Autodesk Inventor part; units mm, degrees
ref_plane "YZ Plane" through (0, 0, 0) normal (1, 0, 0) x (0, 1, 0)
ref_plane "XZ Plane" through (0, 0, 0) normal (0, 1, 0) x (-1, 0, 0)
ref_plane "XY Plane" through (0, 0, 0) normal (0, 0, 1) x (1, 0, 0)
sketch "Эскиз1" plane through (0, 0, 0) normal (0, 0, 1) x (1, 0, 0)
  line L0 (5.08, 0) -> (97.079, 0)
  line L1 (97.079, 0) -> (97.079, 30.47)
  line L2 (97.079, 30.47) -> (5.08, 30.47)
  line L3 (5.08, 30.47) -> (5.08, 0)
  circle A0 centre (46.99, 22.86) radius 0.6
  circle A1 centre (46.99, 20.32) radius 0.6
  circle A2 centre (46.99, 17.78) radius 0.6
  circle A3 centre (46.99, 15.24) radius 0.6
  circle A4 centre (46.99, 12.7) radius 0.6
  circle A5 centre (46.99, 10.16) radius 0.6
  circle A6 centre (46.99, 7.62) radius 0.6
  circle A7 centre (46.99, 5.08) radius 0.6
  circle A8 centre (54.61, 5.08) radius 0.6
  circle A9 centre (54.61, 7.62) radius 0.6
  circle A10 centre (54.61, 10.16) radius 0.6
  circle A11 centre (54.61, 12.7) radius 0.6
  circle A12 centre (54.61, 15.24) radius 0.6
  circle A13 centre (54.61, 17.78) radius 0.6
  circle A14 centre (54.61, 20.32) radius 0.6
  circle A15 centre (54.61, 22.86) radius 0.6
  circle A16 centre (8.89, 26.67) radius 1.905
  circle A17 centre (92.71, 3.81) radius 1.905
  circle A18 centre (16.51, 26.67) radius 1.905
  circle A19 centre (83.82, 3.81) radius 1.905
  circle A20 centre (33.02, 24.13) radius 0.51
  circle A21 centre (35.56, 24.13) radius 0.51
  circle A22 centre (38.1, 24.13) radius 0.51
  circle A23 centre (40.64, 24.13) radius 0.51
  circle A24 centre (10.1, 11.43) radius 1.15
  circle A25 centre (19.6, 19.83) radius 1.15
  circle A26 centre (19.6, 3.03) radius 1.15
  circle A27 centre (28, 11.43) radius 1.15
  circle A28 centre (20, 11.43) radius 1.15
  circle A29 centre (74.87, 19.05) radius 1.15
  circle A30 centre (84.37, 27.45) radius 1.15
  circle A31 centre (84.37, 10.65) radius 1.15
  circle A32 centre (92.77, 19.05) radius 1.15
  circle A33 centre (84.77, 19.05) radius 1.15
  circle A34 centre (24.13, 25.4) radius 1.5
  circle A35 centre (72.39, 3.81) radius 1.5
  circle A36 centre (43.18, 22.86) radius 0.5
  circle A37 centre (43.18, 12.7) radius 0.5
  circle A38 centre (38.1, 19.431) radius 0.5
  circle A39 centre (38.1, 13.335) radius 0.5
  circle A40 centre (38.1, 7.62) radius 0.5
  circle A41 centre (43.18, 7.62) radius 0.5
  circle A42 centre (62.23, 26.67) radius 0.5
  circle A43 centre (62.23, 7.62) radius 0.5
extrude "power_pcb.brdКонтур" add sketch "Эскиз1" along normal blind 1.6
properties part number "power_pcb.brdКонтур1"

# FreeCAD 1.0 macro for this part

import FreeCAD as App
import Part
import Sketcher
from FreeCAD import Vector
Q = App.Units.Quantity


def add_polygon(sketch, points):
    """Adds a closed chain of lines whose ends are joined by coincident constraints."""
    first, n = sketch.GeometryCount, len(points)
    for a, b in zip(points, points[1:] + points[:1]):
        sketch.addGeometry(Part.LineSegment(App.Vector(*a, 0), App.Vector(*b, 0)), False)
    for i in range(n):
        sketch.addConstraint(Sketcher.Constraint("Coincident", first + i, 2, first + (i + 1) % n, 1))

doc = App.newDocument("Part")
body = doc.addObject("PartDesign::Body", "Body")

# Sketch on XY plane
sketch1 = doc.addObject("Sketcher::SketchObject", "Sketch")
body.addObject(sketch1)
sketch1.AttachmentSupport = (doc.XY_Plane, [""])
sketch1.MapMode = "FlatFace"
add_polygon(sketch1, [(5.08, 30.47), (5.08, 0), (97.079, 0), (97.079, 30.47)])  # lines 0-3
sketch1.addGeometry(Part.Circle(Vector(19.6, 3.03, 0), Vector(0, 0, 1), 1.15), False)  # 4
sketch1.addGeometry(Part.Circle(Vector(46.99, 5.08, 0), Vector(0, 0, 1), 0.6), False)  # 5
sketch1.addGeometry(Part.Circle(Vector(10.1, 11.43, 0), Vector(0, 0, 1), 1.15), False)  # 6
sketch1.addGeometry(Part.Circle(Vector(20, 11.43, 0), Vector(0, 0, 1), 1.15), False)  # 7
sketch1.addGeometry(Part.Circle(Vector(28, 11.43, 0), Vector(0, 0, 1), 1.15), False)  # 8
sketch1.addGeometry(Part.Circle(Vector(38.1, 7.62, 0), Vector(0, 0, 1), 0.5), False)  # 9
sketch1.addGeometry(Part.Circle(Vector(43.18, 7.62, 0), Vector(0, 0, 1), 0.5), False)  # 10
sketch1.addGeometry(Part.Circle(Vector(46.99, 7.62, 0), Vector(0, 0, 1), 0.6), False)  # 11
sketch1.addGeometry(Part.Circle(Vector(46.99, 10.16, 0), Vector(0, 0, 1), 0.6), False)  # 12
sketch1.addGeometry(Part.Circle(Vector(38.1, 13.335, 0), Vector(0, 0, 1), 0.5), False)  # 13
sketch1.addGeometry(Part.Circle(Vector(43.18, 12.7, 0), Vector(0, 0, 1), 0.5), False)  # 14
sketch1.addGeometry(Part.Circle(Vector(46.99, 12.7, 0), Vector(0, 0, 1), 0.6), False)  # 15
sketch1.addGeometry(Part.Circle(Vector(54.61, 5.08, 0), Vector(0, 0, 1), 0.6), False)  # 16
sketch1.addGeometry(Part.Circle(Vector(72.39, 3.81, 0), Vector(0, 0, 1), 1.5), False)  # 17
sketch1.addGeometry(Part.Circle(Vector(83.82, 3.81, 0), Vector(0, 0, 1), 1.905), False)  # 18
sketch1.addGeometry(Part.Circle(Vector(92.71, 3.81, 0), Vector(0, 0, 1), 1.905), False)  # 19
sketch1.addGeometry(Part.Circle(Vector(54.61, 7.62, 0), Vector(0, 0, 1), 0.6), False)  # 20
sketch1.addGeometry(Part.Circle(Vector(62.23, 7.62, 0), Vector(0, 0, 1), 0.5), False)  # 21
sketch1.addGeometry(Part.Circle(Vector(54.61, 10.16, 0), Vector(0, 0, 1), 0.6), False)  # 22
sketch1.addGeometry(Part.Circle(Vector(54.61, 12.7, 0), Vector(0, 0, 1), 0.6), False)  # 23
sketch1.addGeometry(Part.Circle(Vector(84.37, 10.65, 0), Vector(0, 0, 1), 1.15), False)  # 24
sketch1.addGeometry(Part.Circle(Vector(19.6, 19.83, 0), Vector(0, 0, 1), 1.15), False)  # 25
sketch1.addGeometry(Part.Circle(Vector(46.99, 15.24, 0), Vector(0, 0, 1), 0.6), False)  # 26
sketch1.addGeometry(Part.Circle(Vector(46.99, 17.78, 0), Vector(0, 0, 1), 0.6), False)  # 27
sketch1.addGeometry(Part.Circle(Vector(38.1, 19.431, 0), Vector(0, 0, 1), 0.5), False)  # 28
sketch1.addGeometry(Part.Circle(Vector(46.99, 20.32, 0), Vector(0, 0, 1), 0.6), False)  # 29
sketch1.addGeometry(Part.Circle(Vector(24.13, 25.4, 0), Vector(0, 0, 1), 1.5), False)  # 30
sketch1.addGeometry(Part.Circle(Vector(8.89, 26.67, 0), Vector(0, 0, 1), 1.905), False)  # 31
sketch1.addGeometry(Part.Circle(Vector(16.51, 26.67, 0), Vector(0, 0, 1), 1.905), False)  # 32
sketch1.addGeometry(Part.Circle(Vector(33.02, 24.13, 0), Vector(0, 0, 1), 0.51), False)  # 33
sketch1.addGeometry(Part.Circle(Vector(35.56, 24.13, 0), Vector(0, 0, 1), 0.51), False)  # 34
sketch1.addGeometry(Part.Circle(Vector(38.1, 24.13, 0), Vector(0, 0, 1), 0.51), False)  # 35
sketch1.addGeometry(Part.Circle(Vector(43.18, 22.86, 0), Vector(0, 0, 1), 0.5), False)  # 36
sketch1.addGeometry(Part.Circle(Vector(40.64, 24.13, 0), Vector(0, 0, 1), 0.51), False)  # 37
sketch1.addGeometry(Part.Circle(Vector(46.99, 22.86, 0), Vector(0, 0, 1), 0.6), False)  # 38
sketch1.addGeometry(Part.Circle(Vector(54.61, 15.24, 0), Vector(0, 0, 1), 0.6), False)  # 39
sketch1.addGeometry(Part.Circle(Vector(54.61, 17.78, 0), Vector(0, 0, 1), 0.6), False)  # 40
sketch1.addGeometry(Part.Circle(Vector(54.61, 20.32, 0), Vector(0, 0, 1), 0.6), False)  # 41
sketch1.addGeometry(Part.Circle(Vector(74.87, 19.05, 0), Vector(0, 0, 1), 1.15), False)  # 42
sketch1.addGeometry(Part.Circle(Vector(84.77, 19.05, 0), Vector(0, 0, 1), 1.15), False)  # 43
sketch1.addGeometry(Part.Circle(Vector(92.77, 19.05, 0), Vector(0, 0, 1), 1.15), False)  # 44
sketch1.addGeometry(Part.Circle(Vector(54.61, 22.86, 0), Vector(0, 0, 1), 0.6), False)  # 45
sketch1.addGeometry(Part.Circle(Vector(62.23, 26.67, 0), Vector(0, 0, 1), 0.5), False)  # 46
sketch1.addGeometry(Part.Circle(Vector(84.37, 27.45, 0), Vector(0, 0, 1), 1.15), False)  # 47
sketch1.addConstraint([
    Sketcher.Constraint("Vertical", 0),
    Sketcher.Constraint("Horizontal", 1),
    Sketcher.Constraint("Vertical", 2),
    Sketcher.Constraint("Horizontal", 3),
    Sketcher.Constraint("Equal", 4, 6),
    Sketcher.Constraint("Equal", 6, 7),
    Sketcher.Constraint("Equal", 7, 8),
    Sketcher.Constraint("Equal", 9, 10),
    Sketcher.Constraint("Equal", 5, 11),
    Sketcher.Constraint("Equal", 11, 12),
    Sketcher.Constraint("Equal", 10, 13),
    Sketcher.Constraint("Equal", 13, 14),
    Sketcher.Constraint("Equal", 12, 15),
    Sketcher.Constraint("Equal", 15, 16),
    Sketcher.Constraint("Equal", 18, 19),
    Sketcher.Constraint("Equal", 16, 20),
    Sketcher.Constraint("Equal", 14, 21),
    Sketcher.Constraint("Equal", 20, 22),
    Sketcher.Constraint("Equal", 22, 23),
    Sketcher.Constraint("Equal", 8, 24),
    Sketcher.Constraint("Equal", 24, 25),
    Sketcher.Constraint("Equal", 23, 26),
    Sketcher.Constraint("Equal", 26, 27),
    Sketcher.Constraint("Equal", 21, 28),
    Sketcher.Constraint("Equal", 27, 29),
    Sketcher.Constraint("Equal", 17, 30),
    Sketcher.Constraint("Equal", 19, 31),
    Sketcher.Constraint("Equal", 31, 32),
    Sketcher.Constraint("Equal", 33, 34),
    Sketcher.Constraint("Equal", 34, 35),
    Sketcher.Constraint("Equal", 28, 36),
    Sketcher.Constraint("Equal", 35, 37),
    Sketcher.Constraint("Equal", 29, 38),
    Sketcher.Constraint("Equal", 38, 39),
    Sketcher.Constraint("Equal", 39, 40),
    Sketcher.Constraint("Equal", 40, 41),
    Sketcher.Constraint("Equal", 25, 42),
    Sketcher.Constraint("Equal", 42, 43),
    Sketcher.Constraint("Equal", 43, 44),
    Sketcher.Constraint("Equal", 41, 45),
    Sketcher.Constraint("Equal", 36, 46),
    Sketcher.Constraint("Equal", 44, 47),
    Sketcher.Constraint("PointOnObject", 0, 2, -1),
    Sketcher.Constraint("Horizontal", 6, 3, 7, 3),
    Sketcher.Constraint("Horizontal", 7, 3, 8, 3),
    Sketcher.Constraint("Horizontal", 9, 3, 10, 3),
    Sketcher.Constraint("Horizontal", 10, 3, 11, 3),
    Sketcher.Constraint("Horizontal", 14, 3, 15, 3),
    Sketcher.Constraint("Horizontal", 5, 3, 16, 3),
    Sketcher.Constraint("Horizontal", 17, 3, 18, 3),
    Sketcher.Constraint("Horizontal", 18, 3, 19, 3),
    Sketcher.Constraint("Horizontal", 11, 3, 20, 3),
    Sketcher.Constraint("Horizontal", 20, 3, 21, 3),
    Sketcher.Constraint("Horizontal", 12, 3, 22, 3),
    Sketcher.Constraint("Horizontal", 15, 3, 23, 3),
    Sketcher.Constraint("Horizontal", 31, 3, 32, 3),
    Sketcher.Constraint("Horizontal", 33, 3, 34, 3),
    Sketcher.Constraint("Horizontal", 34, 3, 35, 3),
    Sketcher.Constraint("Horizontal", 35, 3, 37, 3),
    Sketcher.Constraint("Horizontal", 36, 3, 38, 3),
    Sketcher.Constraint("Horizontal", 26, 3, 39, 3),
    Sketcher.Constraint("Horizontal", 27, 3, 40, 3),
    Sketcher.Constraint("Horizontal", 29, 3, 41, 3),
    Sketcher.Constraint("Horizontal", 42, 3, 43, 3),
    Sketcher.Constraint("Horizontal", 43, 3, 44, 3),
    Sketcher.Constraint("Horizontal", 38, 3, 45, 3),
    Sketcher.Constraint("Horizontal", 32, 3, 46, 3),
    Sketcher.Constraint("Vertical", 5, 3, 11, 3),
    Sketcher.Constraint("Vertical", 11, 3, 12, 3),
    Sketcher.Constraint("Vertical", 9, 3, 13, 3),
    Sketcher.Constraint("Vertical", 10, 3, 14, 3),
    Sketcher.Constraint("Vertical", 12, 3, 15, 3),
    Sketcher.Constraint("Vertical", 16, 3, 20, 3),
    Sketcher.Constraint("Vertical", 20, 3, 22, 3),
    Sketcher.Constraint("Vertical", 22, 3, 23, 3),
    Sketcher.Constraint("Vertical", 4, 3, 25, 3),
    Sketcher.Constraint("Vertical", 15, 3, 26, 3),
    Sketcher.Constraint("Vertical", 26, 3, 27, 3),
    Sketcher.Constraint("Vertical", 13, 3, 28, 3),
    Sketcher.Constraint("Vertical", 27, 3, 29, 3),
    Sketcher.Constraint("Vertical", 28, 3, 35, 3),
    Sketcher.Constraint("Vertical", 14, 3, 36, 3),
    Sketcher.Constraint("Vertical", 29, 3, 38, 3),
    Sketcher.Constraint("Vertical", 23, 3, 39, 3),
    Sketcher.Constraint("Vertical", 39, 3, 40, 3),
    Sketcher.Constraint("Vertical", 40, 3, 41, 3),
    Sketcher.Constraint("Vertical", 41, 3, 45, 3),
    Sketcher.Constraint("Vertical", 21, 3, 46, 3),
    Sketcher.Constraint("Vertical", 24, 3, 47, 3),
    Sketcher.Constraint("Diameter", 9, Q("1 mm")),
    Sketcher.Constraint("Diameter", 17, Q("3 mm")),
    Sketcher.Constraint("Diameter", 4, Q("2.3 mm")),
    Sketcher.Constraint("Diameter", 5, Q("1.2 mm")),
    Sketcher.Constraint("Diameter", 18, Q("3.81 mm")),
    Sketcher.Constraint("Diameter", 33, Q("1.02 mm")),
    Sketcher.Constraint("DistanceX", -1, 1, 7, 3, Q("20 mm")),
    Sketcher.Constraint("DistanceX", -1, 1, 8, 3, Q("28 mm")),
    Sketcher.Constraint("DistanceX", 6, 3, 9, 3, Q("28 mm")),
    Sketcher.Constraint("DistanceX", 43, 3, 44, 3, Q("8 mm")),
    Sketcher.Constraint("DistanceY", 0, 2, 0, 1, Q("30.47 mm")),
    Sketcher.Constraint("DistanceX", -1, 1, 4, 3, Q("19.6 mm")),
    Sketcher.Constraint("DistanceX", -1, 1, 6, 3, Q("10.1 mm")),
    Sketcher.Constraint("DistanceY", -1, 1, 14, 3, Q("12.7 mm")),
    Sketcher.Constraint("DistanceY", -1, 1, 30, 3, Q("25.4 mm")),
    Sketcher.Constraint("DistanceY", 4, 3, 6, 3, Q("8.4 mm")),
    Sketcher.Constraint("DistanceX", 5, 3, 17, 3, Q("25.4 mm")),
    Sketcher.Constraint("DistanceX", 16, 3, 19, 3, Q("38.1 mm")),
    Sketcher.Constraint("DistanceY", 7, 3, 25, 3, Q("8.4 mm")),
    Sketcher.Constraint("DistanceY", 8, 3, 33, 3, Q("12.7 mm")),
    Sketcher.Constraint("DistanceX", 42, 3, 24, 3, Q("9.5 mm")),
    Sketcher.Constraint("DistanceY", 24, 3, 42, 3, Q("8.4 mm")),
    Sketcher.Constraint("DistanceX", 24, 3, 43, 3, Q("0.4 mm")),
    Sketcher.Constraint("DistanceY", 43, 3, 47, 3, Q("8.4 mm")),
    Sketcher.Constraint("DistanceY", 31, 3, 3, 2, Q("3.8 mm")),
    Sketcher.Constraint("DistanceX", 1, 1, 1, 2, Q("91.999 mm")),
    Sketcher.Constraint("DistanceY", -1, 1, 4, 3, Q("3.03 mm")),
    Sketcher.Constraint("DistanceX", -1, 1, 5, 3, Q("46.99 mm")),
    Sketcher.Constraint("DistanceY", -1, 1, 5, 3, Q("5.08 mm")),
    Sketcher.Constraint("DistanceY", -1, 1, 9, 3, Q("7.62 mm")),
    Sketcher.Constraint("DistanceX", -1, 1, 10, 3, Q("43.18 mm")),
    Sketcher.Constraint("DistanceY", -1, 1, 12, 3, Q("10.16 mm")),
    Sketcher.Constraint("DistanceX", -1, 1, 16, 3, Q("54.61 mm")),
    Sketcher.Constraint("DistanceY", -1, 1, 17, 3, Q("3.81 mm")),
    Sketcher.Constraint("DistanceX", -1, 1, 18, 3, Q("83.82 mm")),
    Sketcher.Constraint("DistanceX", -1, 1, 21, 3, Q("62.23 mm")),
    Sketcher.Constraint("DistanceX", -1, 1, 24, 3, Q("84.37 mm")),
    Sketcher.Constraint("DistanceY", -1, 1, 24, 3, Q("10.65 mm")),
    Sketcher.Constraint("DistanceY", -1, 1, 26, 3, Q("15.24 mm")),
    Sketcher.Constraint("DistanceY", -1, 1, 27, 3, Q("17.78 mm")),
    Sketcher.Constraint("DistanceY", -1, 1, 29, 3, Q("20.32 mm")),
    Sketcher.Constraint("DistanceX", -1, 1, 30, 3, Q("24.13 mm")),
    Sketcher.Constraint("DistanceX", -1, 1, 31, 3, Q("8.89 mm")),
    Sketcher.Constraint("DistanceX", -1, 1, 32, 3, Q("16.51 mm")),
    Sketcher.Constraint("DistanceX", -1, 1, 33, 3, Q("33.02 mm")),
    Sketcher.Constraint("DistanceX", -1, 1, 34, 3, Q("35.56 mm")),
    Sketcher.Constraint("DistanceY", -1, 1, 36, 3, Q("22.86 mm")),
    Sketcher.Constraint("DistanceX", -1, 1, 37, 3, Q("40.64 mm")),
    Sketcher.Constraint("DistanceX", -1, 1, 0, 2, Q("5.08 mm")),
    Sketcher.Constraint("DistanceY", -1, 1, 13, 3, Q("13.335 mm")),
    Sketcher.Constraint("DistanceY", -1, 1, 28, 3, Q("19.431 mm")),
])
pad1 = doc.addObject("PartDesign::Pad", "Pad")
body.addObject(pad1)
pad1.Profile = sketch1
pad1.Length = 1.6

doc.recompute()
